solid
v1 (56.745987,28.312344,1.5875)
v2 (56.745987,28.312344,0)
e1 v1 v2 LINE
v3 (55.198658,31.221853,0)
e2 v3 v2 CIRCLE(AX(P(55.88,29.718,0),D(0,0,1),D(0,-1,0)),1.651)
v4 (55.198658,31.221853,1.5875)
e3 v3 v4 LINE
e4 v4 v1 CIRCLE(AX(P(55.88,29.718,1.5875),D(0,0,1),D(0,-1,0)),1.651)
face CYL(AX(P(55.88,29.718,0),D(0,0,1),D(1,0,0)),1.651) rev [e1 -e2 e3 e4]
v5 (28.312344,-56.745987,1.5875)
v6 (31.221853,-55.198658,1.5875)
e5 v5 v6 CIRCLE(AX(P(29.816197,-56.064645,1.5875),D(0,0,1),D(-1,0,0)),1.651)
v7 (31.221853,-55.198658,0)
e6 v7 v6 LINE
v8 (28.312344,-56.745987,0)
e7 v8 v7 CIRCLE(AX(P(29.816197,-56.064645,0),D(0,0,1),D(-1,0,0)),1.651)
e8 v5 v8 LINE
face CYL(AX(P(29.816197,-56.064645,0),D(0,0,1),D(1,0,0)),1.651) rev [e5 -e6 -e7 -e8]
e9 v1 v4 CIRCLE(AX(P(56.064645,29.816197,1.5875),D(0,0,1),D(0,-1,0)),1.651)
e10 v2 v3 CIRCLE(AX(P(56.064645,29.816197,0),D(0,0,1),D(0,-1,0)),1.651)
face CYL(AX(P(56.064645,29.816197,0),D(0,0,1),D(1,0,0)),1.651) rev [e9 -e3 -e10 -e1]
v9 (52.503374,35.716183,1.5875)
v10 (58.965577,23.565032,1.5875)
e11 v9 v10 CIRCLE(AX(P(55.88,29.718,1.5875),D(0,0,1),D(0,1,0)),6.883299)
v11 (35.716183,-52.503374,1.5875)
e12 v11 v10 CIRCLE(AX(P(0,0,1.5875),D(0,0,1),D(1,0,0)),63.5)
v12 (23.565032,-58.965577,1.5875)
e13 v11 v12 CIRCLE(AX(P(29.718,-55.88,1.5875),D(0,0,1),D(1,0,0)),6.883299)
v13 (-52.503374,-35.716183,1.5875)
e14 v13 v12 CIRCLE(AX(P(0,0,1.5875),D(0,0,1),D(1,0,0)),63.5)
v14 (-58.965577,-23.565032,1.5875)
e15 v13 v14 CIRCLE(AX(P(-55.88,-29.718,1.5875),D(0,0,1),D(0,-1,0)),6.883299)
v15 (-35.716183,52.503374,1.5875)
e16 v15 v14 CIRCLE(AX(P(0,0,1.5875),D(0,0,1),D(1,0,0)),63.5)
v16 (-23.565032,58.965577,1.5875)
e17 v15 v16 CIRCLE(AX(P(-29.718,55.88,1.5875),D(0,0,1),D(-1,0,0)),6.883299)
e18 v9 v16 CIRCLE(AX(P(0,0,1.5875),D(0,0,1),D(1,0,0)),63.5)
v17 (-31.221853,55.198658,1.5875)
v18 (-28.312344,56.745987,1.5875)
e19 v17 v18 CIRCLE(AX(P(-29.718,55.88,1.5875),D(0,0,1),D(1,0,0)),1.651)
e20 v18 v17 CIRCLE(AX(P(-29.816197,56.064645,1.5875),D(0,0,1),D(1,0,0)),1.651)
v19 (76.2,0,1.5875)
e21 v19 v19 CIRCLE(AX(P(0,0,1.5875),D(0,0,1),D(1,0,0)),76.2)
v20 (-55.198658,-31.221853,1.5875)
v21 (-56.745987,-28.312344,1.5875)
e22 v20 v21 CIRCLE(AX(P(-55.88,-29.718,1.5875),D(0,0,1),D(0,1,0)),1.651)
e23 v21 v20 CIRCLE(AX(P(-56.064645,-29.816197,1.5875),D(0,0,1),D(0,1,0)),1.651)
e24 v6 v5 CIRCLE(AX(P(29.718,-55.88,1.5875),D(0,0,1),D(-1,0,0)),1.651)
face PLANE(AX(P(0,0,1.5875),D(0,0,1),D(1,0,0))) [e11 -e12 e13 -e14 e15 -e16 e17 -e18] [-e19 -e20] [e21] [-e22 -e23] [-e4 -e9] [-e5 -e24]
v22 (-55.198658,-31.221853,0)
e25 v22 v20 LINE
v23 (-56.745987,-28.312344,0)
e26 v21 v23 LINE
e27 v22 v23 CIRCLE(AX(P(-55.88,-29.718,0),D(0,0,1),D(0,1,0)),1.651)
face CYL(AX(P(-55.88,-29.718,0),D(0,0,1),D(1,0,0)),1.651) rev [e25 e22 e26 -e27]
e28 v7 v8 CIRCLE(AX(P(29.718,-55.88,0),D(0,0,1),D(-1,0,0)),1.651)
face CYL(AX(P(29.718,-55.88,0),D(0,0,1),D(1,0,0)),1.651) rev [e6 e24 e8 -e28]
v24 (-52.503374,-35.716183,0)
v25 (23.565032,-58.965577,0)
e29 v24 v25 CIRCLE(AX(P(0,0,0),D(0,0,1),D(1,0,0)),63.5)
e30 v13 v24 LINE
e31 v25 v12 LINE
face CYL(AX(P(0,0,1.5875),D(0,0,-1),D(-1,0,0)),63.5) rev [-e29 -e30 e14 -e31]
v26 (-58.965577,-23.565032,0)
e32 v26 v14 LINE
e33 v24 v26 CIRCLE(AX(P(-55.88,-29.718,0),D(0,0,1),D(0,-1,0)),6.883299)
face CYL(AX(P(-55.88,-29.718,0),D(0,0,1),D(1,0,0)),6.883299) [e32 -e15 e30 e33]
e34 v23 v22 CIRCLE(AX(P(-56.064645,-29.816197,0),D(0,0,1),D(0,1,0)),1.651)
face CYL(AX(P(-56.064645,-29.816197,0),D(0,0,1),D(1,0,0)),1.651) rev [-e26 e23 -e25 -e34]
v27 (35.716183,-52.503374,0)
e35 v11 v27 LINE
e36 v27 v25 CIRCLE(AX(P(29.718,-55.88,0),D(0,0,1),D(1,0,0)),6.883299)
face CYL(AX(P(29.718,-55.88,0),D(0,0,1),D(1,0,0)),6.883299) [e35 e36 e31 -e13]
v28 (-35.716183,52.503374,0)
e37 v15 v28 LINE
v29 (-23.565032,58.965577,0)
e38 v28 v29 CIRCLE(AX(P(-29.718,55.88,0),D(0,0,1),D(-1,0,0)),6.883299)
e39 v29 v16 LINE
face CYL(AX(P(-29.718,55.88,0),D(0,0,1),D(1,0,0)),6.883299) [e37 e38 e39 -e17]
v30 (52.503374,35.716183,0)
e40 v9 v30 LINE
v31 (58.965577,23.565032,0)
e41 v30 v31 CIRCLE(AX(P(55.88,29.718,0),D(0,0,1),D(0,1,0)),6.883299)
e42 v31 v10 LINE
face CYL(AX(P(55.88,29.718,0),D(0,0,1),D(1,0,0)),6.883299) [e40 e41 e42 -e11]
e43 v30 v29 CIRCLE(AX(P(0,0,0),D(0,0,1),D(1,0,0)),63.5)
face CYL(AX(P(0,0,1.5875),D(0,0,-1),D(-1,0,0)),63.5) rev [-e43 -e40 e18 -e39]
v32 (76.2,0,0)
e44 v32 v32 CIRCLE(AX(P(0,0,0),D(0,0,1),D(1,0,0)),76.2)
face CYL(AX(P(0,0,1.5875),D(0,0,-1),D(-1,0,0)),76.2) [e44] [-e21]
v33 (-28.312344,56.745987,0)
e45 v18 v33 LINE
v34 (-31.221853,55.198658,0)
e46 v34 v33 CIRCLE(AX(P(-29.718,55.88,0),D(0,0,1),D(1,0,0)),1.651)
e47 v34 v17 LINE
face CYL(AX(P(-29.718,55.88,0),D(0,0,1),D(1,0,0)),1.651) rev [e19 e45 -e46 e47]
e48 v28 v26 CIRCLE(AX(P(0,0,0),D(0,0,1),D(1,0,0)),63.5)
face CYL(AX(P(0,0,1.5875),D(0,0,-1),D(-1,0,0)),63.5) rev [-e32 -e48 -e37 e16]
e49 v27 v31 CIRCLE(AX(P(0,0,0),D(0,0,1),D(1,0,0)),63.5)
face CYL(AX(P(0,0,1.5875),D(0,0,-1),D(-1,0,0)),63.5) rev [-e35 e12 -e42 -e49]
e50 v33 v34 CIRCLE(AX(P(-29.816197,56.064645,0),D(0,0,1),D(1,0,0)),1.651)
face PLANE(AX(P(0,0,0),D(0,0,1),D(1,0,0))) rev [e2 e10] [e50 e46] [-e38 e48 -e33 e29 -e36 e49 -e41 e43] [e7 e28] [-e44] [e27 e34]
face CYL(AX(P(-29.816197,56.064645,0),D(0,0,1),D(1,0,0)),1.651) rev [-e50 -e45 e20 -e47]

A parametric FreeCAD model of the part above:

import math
import FreeCAD as App
import Part
import Sketcher
Q = App.Units.Quantity

doc = App.newDocument("Part")
body = doc.addObject("PartDesign::Body", "Body")

sketch1 = doc.addObject("Sketcher::SketchObject", "Sketch")
body.addObject(sketch1)
sketch1.AttachmentSupport = (doc.XY_Plane, [""])
sketch1.MapMode = "FlatFace"
sketch1.addGeometry(Part.Circle(App.Vector(0, 0, 0), App.Vector(0, 0, 1), 76), False)
sketch1.addGeometry(Part.Circle(App.Vector(0, 0, 0), App.Vector(0, 0, 1), 64), False)
sketch1.addConstraint(Sketcher.Constraint("Coincident", 0, 3, -1, 1))
sketch1.addConstraint(Sketcher.Constraint("Coincident", 1, 3, -1, 1))
sketch1.addConstraint(Sketcher.Constraint("Diameter", 0, Q("6 in")))
sketch1.addConstraint(Sketcher.Constraint("Diameter", 1, Q("5 in")))
pad1 = doc.addObject("PartDesign::Pad", "Pad")
body.addObject(pad1)
pad1.Profile = sketch1
pad1.Length = Q("0.0625 in")

sketch2 = doc.addObject("Sketcher::SketchObject", "Sketch001")
body.addObject(sketch2)
sketch2.AttachmentSupport = (doc.XY_Plane, [""])
sketch2.MapMode = "FlatFace"
sketch2.AttachmentOffset = App.Placement(App.Vector(0, 0, 0.0625 * 25.4), App.Rotation())
sketch2.addGeometry(Part.LineSegment(App.Vector(-25.3, 61.2, 0), App.Vector(-36.5, 54.7, 0)), False)
sketch2.addGeometry(Part.ArcOfCircle(Part.Circle(App.Vector(-29.7, 55.9, 0), App.Vector(0, 0, 1), 6.9), math.radians(-170), math.radians(50)), False)
sketch2.addGeometry(Part.Circle(App.Vector(-29.7, 55.9, 0), App.Vector(0, 0, 1), 1.7), False)
sketch2.addConstraint(Sketcher.Constraint("Coincident", 0, 1, 1, 2))
sketch2.addConstraint(Sketcher.Constraint("Coincident", 1, 1, 0, 2))
sketch2.addConstraint(Sketcher.Constraint("Coincident", 2, 3, 1, 3))
sketch2.addConstraint(Sketcher.Constraint("Diameter", 2, Q("0.13 in")))
sketch2.addConstraint(Sketcher.Constraint("DistanceY", -1, 1, 1, 3, Q("2.2 in")))
sketch2.addConstraint(Sketcher.Constraint("DistanceX", 1, 3, -1, 1, Q("1.17 in")))
sketch2.addConstraint(Sketcher.Constraint("Radius", 1, Q("6.883299 mm")))
sketch2.addConstraint(Sketcher.Constraint("DistanceY", -1, 1, 0, 1, Q("61.158321 mm")))
sketch2.addConstraint(Sketcher.Constraint("DistanceX", 1, 1, 0, 1, Q("11.19613 mm")))
pad2 = doc.addObject("PartDesign::Pad", "Pad001")
body.addObject(pad2)
pad2.Profile = sketch2
pad2.Length = Q("0.0625 in")
pad2.Reversed = True

sketch3 = doc.addObject("Sketcher::SketchObject", "Sketch002")
body.addObject(sketch3)
sketch3.AttachmentSupport = (doc.XY_Plane, [""])
sketch3.MapMode = "FlatFace"
sketch3.AttachmentOffset = App.Placement(App.Vector(0, 0, 0.0625 * 25.4), App.Rotation())
sketch3.addGeometry(Part.Circle(App.Vector(-29.8, 56.1, 0), App.Vector(0, 0, 1), 1.7), False)
sketch3.addConstraint(Sketcher.Constraint("Diameter", 0, Q("0.13 in")))
sketch3.addConstraint(Sketcher.Constraint("DistanceX", 0, 3, -1, 1, Q("29.816197 mm")))
sketch3.addConstraint(Sketcher.Constraint("DistanceY", -1, 1, 0, 3, Q("56.064645 mm")))
pocket1 = doc.addObject("PartDesign::Pocket", "Pocket")
body.addObject(pocket1)
pocket1.Profile = sketch3
pocket1.Length = Q("0.0625 in")
doc.recompute()

polarpattern = doc.addObject("PartDesign::PolarPattern", "PolarPattern")
body.addObject(polarpattern)
polarpattern.Originals = [pad2]
polarpattern.Axis = (doc.Z_Axis, [""])
polarpattern.Angle = 360
polarpattern.Occurrences = 4
body.Tip = polarpattern
doc.recompute()

polarpattern2 = doc.addObject("PartDesign::PolarPattern", "PolarPattern001")
body.addObject(polarpattern2)
polarpattern2.Originals = [pocket1]
polarpattern2.Axis = (doc.Z_Axis, [""])
polarpattern2.Angle = 360
polarpattern2.Occurrences = 4
body.Tip = polarpattern2

doc.recompute()
